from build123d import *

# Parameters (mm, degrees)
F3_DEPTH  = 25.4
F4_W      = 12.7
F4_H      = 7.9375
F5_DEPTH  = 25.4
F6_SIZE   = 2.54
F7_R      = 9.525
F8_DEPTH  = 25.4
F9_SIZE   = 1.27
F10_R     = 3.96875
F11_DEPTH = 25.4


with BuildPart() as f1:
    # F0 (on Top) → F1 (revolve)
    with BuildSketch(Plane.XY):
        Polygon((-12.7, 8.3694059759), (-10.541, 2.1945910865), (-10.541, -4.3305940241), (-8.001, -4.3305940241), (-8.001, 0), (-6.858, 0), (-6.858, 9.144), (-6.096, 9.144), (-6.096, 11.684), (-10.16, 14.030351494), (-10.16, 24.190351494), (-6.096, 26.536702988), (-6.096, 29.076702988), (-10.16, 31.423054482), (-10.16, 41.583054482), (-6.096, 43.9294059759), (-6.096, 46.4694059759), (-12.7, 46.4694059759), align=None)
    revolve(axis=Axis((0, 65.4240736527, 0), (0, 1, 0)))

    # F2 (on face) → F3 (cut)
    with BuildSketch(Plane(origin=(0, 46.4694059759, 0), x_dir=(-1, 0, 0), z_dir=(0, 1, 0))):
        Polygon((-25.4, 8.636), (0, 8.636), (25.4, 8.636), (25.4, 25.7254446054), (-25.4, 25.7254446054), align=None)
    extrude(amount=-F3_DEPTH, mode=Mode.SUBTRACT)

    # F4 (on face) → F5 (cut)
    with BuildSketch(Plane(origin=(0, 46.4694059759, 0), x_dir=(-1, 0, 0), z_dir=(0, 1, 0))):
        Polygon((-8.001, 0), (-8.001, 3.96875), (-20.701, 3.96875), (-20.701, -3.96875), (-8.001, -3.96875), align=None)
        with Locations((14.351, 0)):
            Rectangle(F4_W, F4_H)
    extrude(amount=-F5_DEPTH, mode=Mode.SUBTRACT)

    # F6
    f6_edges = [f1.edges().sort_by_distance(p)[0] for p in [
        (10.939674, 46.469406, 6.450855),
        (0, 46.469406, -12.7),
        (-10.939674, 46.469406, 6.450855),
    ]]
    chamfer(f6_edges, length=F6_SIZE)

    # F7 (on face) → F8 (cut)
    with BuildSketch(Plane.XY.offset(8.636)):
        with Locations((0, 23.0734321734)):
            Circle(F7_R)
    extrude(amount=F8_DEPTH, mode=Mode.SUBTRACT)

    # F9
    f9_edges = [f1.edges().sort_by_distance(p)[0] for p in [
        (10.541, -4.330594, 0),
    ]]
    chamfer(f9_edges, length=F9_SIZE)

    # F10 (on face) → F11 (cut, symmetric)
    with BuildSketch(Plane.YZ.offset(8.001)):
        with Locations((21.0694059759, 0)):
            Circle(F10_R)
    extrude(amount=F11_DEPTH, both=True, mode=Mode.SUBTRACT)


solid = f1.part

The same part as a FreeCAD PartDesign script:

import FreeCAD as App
import Part
import Sketcher
Q = App.Units.Quantity


def edges_at(feature, points):
    """Names of the edges that pass closest to the given points."""
    edges = feature.Shape.Edges
    near = lambda p: min(range(len(edges)), key=lambda i: edges[i].distToShape(Part.Vertex(*p))[0])
    return sorted({f"Edge{near(p) + 1}" for p in points})


def add_polygon(sketch, points):
    """Adds a closed chain of lines whose ends are joined by coincident constraints."""
    first, n = sketch.GeometryCount, len(points)
    for a, b in zip(points, points[1:] + points[:1]):
        sketch.addGeometry(Part.LineSegment(App.Vector(*a, 0), App.Vector(*b, 0)), False)
    for i in range(n):
        sketch.addConstraint(Sketcher.Constraint("Coincident", first + i, 2, first + (i + 1) % n, 1))

doc = App.newDocument("Part")
params = doc.addObject("Spreadsheet::Sheet", "Params")
for row, (alias, value) in enumerate([
    ("sketch1_width", "0.1 in"),
    ("sketch1_height", "0.4 in"),
    ("sketch1_height2", "1.5 in"),
    ("sketch1_width2", "0.03 in"),
    ("sketch1_width3", "0.26 in"),
    ("revolution_angle", "360 deg"),
    ("sketch2_width", "2 in"),
    ("pocket1_length", "1 in"),
    ("sketch3_width", "0.5 in"),
    ("sketch3_height", "0.3125 in"),
    ("pocket2_length", "1 in"),
    ("chamfer_size", "0.1 in"),
    ("sketch4_diameter", "0.75 in"),
    ("pocket3_length", "1 in"),
    ("chamfer2_size", "0.05 in"),
    ("sketch5_diameter", "0.3125 in"),
    ("pocket4_length", "2 in"),
], start=1):
    params.set(f"A{row}", alias)
    params.set(f"B{row}", "=" + value)
    params.setAlias(f"B{row}", alias)

body = doc.addObject("PartDesign::Body", "Body")

sketch1 = doc.addObject("Sketcher::SketchObject", "Sketch")
body.addObject(sketch1)
sketch1.AttachmentSupport = (doc.XY_Plane, [""])
sketch1.MapMode = "FlatFace"
add_polygon(sketch1, [(-12.7, 8.4), (-10.5, 2.2), (-10.5, -4.3), (-8, -4.3), (-8, 0), (-6.9, 0), (-6.9, 9.1), (-6.1, 9.1), (-6.1, 11.7), (-10.2, 14), (-10.2, 24.2), (-6.1, 26.5), (-6.1, 29.1), (-10.2, 31.4), (-10.2, 41.6), (-6.1, 43.9), (-6.1, 46.5), (-12.7, 46.5)])
sketch1.addConstraint([
    Sketcher.Constraint("Vertical", 1),
    Sketcher.Constraint("Horizontal", 2),
    Sketcher.Constraint("Vertical", 3),
    Sketcher.Constraint("Horizontal", 4),
    Sketcher.Constraint("Vertical", 5),
    Sketcher.Constraint("Horizontal", 6),
    Sketcher.Constraint("Vertical", 7),
    Sketcher.Constraint("Vertical", 9),
    Sketcher.Constraint("Vertical", 11),
    Sketcher.Constraint("Vertical", 13),
    Sketcher.Constraint("Vertical", 15),
    Sketcher.Constraint("Horizontal", 16),
    Sketcher.Constraint("Vertical", 17),
    Sketcher.Constraint("PointOnObject", 3, 2, -1),
    Sketcher.Constraint("Parallel", 8, 12),
    Sketcher.Constraint("Parallel", 10, 14),
    Sketcher.Constraint("Vertical", 7, 2, 10, 2),
    Sketcher.Constraint("Vertical", 9, 2, 12, 2),
    Sketcher.Constraint("Vertical", 11, 2, 14, 2),
    Sketcher.Constraint("Equal", 2, 7),
    Sketcher.Constraint("Equal", 7, 11),
    Sketcher.Constraint("Equal", 9, 13),
    Sketcher.Constraint("Equal", 11, 15),
    Sketcher.Constraint("Equal", 8, 10),
    Sketcher.Constraint("DistanceX", 2, 1, 2, 2, Q("0.1 in")),
    Sketcher.Constraint("DistanceY", 9, 1, 9, 2, Q("0.4 in")),
    Sketcher.Constraint("DistanceY", 17, 2, 17, 1, Q("1.5 in")),
    Sketcher.Constraint("Angle", 8, Q("150 deg")),
    Sketcher.Constraint("DistanceX", 6, 1, 6, 2, Q("0.03 in")),
    Sketcher.Constraint("DistanceX", 16, 2, 16, 1, Q("0.26 in")),
    Sketcher.Constraint("DistanceY", 5, 1, 5, 2, Q("0.36 in")),
    Sketcher.Constraint("DistanceX", 8, 2, -1, 1, Q("0.4 in")),
    Sketcher.Constraint("DistanceX", 16, 2, -1, 1, Q("0.5 in")),
    Sketcher.Constraint("DistanceX", 4, 1, 4, 2, Q("0.045 in")),
    Sketcher.Constraint("DistanceY", 1, 2, 1, 1, 6.525185),
    Sketcher.Constraint("DistanceY", 3, 1, 3, 2, 4.330594),
])
sketch1.setExpression("Constraints[42]", "Params.sketch1_width")
sketch1.setExpression("Constraints[43]", "Params.sketch1_height")
sketch1.setExpression("Constraints[44]", "Params.sketch1_height2")
sketch1.setExpression("Constraints[46]", "Params.sketch1_width2")
sketch1.setExpression("Constraints[47]", "Params.sketch1_width3")
revolution = doc.addObject("PartDesign::Revolution", "Revolution")
body.addObject(revolution)
revolution.Profile = sketch1
revolution.ReferenceAxis = (sketch1, ["V_Axis"])
revolution.setExpression("Angle", "Params.revolution_angle")

sketch2 = doc.addObject("Sketcher::SketchObject", "Sketch001")
body.addObject(sketch2)
sketch2.AttachmentSupport = (doc.XZ_Plane, [""])
sketch2.MapMode = "FlatFace"
sketch2.AttachmentOffset = App.Placement(App.Vector(0, 0, -46.469406), App.Rotation())
add_polygon(sketch2, [(25, 9), (-25, 9), (-25, 26), (25, 26)])
sketch2.addConstraint([
    Sketcher.Constraint("Horizontal", 0),
    Sketcher.Constraint("Vertical", 1),
    Sketcher.Constraint("Horizontal", 2),
    Sketcher.Constraint("Vertical", 3),
    Sketcher.Constraint("DistanceX", 0, 2, 0, 1, Q("2 in")),
    Sketcher.Constraint("DistanceX", 0, 2, -1, 1, Q("1 in")),
    Sketcher.Constraint("DistanceY", -1, 1, 0, 2, Q("0.34 in")),
    Sketcher.Constraint("DistanceY", 1, 1, 1, 2, 17.089445),
])
sketch2.setExpression("Constraints[8]", "Params.sketch2_width")
pocket1 = doc.addObject("PartDesign::Pocket", "Pocket")
body.addObject(pocket1)
pocket1.Profile = sketch2
pocket1.setExpression("Length", "Params.pocket1_length")
pocket1.Reversed = True

sketch3 = doc.addObject("Sketcher::SketchObject", "Sketch002")
body.addObject(sketch3)
sketch3.AttachmentSupport = (doc.XZ_Plane, [""])
sketch3.MapMode = "FlatFace"
sketch3.AttachmentOffset = App.Placement(App.Vector(0, 0, -46.469406), App.Rotation())
add_polygon(sketch3, [(8, 4), (21, 4), (21, -4), (8, -4)])
add_polygon(sketch3, [(-8, 4), (-8, -4), (-21, -4), (-21, 4)])
sketch3.addConstraint([
    Sketcher.Constraint("Horizontal", 0),
    Sketcher.Constraint("Vertical", 1),
    Sketcher.Constraint("Horizontal", 2),
    Sketcher.Constraint("Vertical", 3),
    Sketcher.Constraint("Vertical", 4),
    Sketcher.Constraint("Horizontal", 5),
    Sketcher.Constraint("Vertical", 6),
    Sketcher.Constraint("Horizontal", 7),
    Sketcher.Constraint("Symmetric", 3, 2, 4, 2, -1, 1),
    Sketcher.Constraint("Symmetric", 1, 2, 6, 2, -1, 1),
    Sketcher.Constraint("Horizontal", 2, 2, 4, 2),
    Sketcher.Constraint("DistanceX", 0, 1, 0, 2, Q("0.5 in")),
    Sketcher.Constraint("DistanceY", 1, 2, 1, 1, Q("0.3125 in")),
    Sketcher.Constraint("DistanceX", 4, 2, 2, 2, Q("0.63 in")),
])
sketch3.setExpression("Constraints[19]", "Params.sketch3_width")
sketch3.setExpression("Constraints[20]", "Params.sketch3_height")
pocket2 = doc.addObject("PartDesign::Pocket", "Pocket001")
body.addObject(pocket2)
pocket2.Profile = sketch3
pocket2.setExpression("Length", "Params.pocket2_length")
pocket2.Reversed = True
doc.recompute()

chamfer = doc.addObject("PartDesign::Chamfer", "Chamfer")
body.addObject(chamfer)
chamfer.Base = (pocket2, edges_at(pocket2, [(10.94, 46.469, 6.451), (0, 46.469, -12.7), (-10.94, 46.469, 6.451)]))
chamfer.setExpression("Size", "Params.chamfer_size")

sketch4 = doc.addObject("Sketcher::SketchObject", "Sketch003")
body.addObject(sketch4)
sketch4.AttachmentSupport = (doc.XY_Plane, [""])
sketch4.MapMode = "FlatFace"
sketch4.AttachmentOffset = App.Placement(App.Vector(0, 0, 0.34 * 25.4), App.Rotation())
sketch4.addGeometry(Part.Circle(App.Vector(0, 23, 0), App.Vector(0, 0, 1), 10), False)
sketch4.addConstraint([
    Sketcher.Constraint("PointOnObject", 0, 3, -2),
    Sketcher.Constraint("Diameter", 0, Q("0.75 in")),
    Sketcher.Constraint("DistanceY", -1, 1, 0, 3, 23.073432),
])
sketch4.setExpression("Constraints[1]", "Params.sketch4_diameter")
pocket3 = doc.addObject("PartDesign::Pocket", "Pocket002")
body.addObject(pocket3)
pocket3.Profile = sketch4
pocket3.setExpression("Length", "Params.pocket3_length")
pocket3.Reversed = True
doc.recompute()

chamfer2 = doc.addObject("PartDesign::Chamfer", "Chamfer001")
body.addObject(chamfer2)
chamfer2.Base = (pocket3, edges_at(pocket3, [(10.541, -4.331, 0)]))
chamfer2.setExpression("Size", "Params.chamfer2_size")

sketch5 = doc.addObject("Sketcher::SketchObject", "Sketch004")
body.addObject(sketch5)
sketch5.AttachmentSupport = (doc.YZ_Plane, [""])
sketch5.MapMode = "FlatFace"
sketch5.AttachmentOffset = App.Placement(App.Vector(0, 0, 0.315 * 25.4), App.Rotation())
sketch5.addGeometry(Part.Circle(App.Vector(21.1, 0, 0), App.Vector(0, 0, 1), 4), False)
sketch5.addConstraint([
    Sketcher.Constraint("PointOnObject", 0, 3, -1),
    Sketcher.Constraint("Diameter", 0, Q("0.3125 in")),
    Sketcher.Constraint("DistanceX", -1, 1, 0, 3, 21.069406),
])
sketch5.setExpression("Constraints[1]", "Params.sketch5_diameter")
pocket4 = doc.addObject("PartDesign::Pocket", "Pocket003")
body.addObject(pocket4)
pocket4.Profile = sketch5
pocket4.setExpression("Length", "Params.pocket4_length")
pocket4.Midplane = True

doc.recompute()
